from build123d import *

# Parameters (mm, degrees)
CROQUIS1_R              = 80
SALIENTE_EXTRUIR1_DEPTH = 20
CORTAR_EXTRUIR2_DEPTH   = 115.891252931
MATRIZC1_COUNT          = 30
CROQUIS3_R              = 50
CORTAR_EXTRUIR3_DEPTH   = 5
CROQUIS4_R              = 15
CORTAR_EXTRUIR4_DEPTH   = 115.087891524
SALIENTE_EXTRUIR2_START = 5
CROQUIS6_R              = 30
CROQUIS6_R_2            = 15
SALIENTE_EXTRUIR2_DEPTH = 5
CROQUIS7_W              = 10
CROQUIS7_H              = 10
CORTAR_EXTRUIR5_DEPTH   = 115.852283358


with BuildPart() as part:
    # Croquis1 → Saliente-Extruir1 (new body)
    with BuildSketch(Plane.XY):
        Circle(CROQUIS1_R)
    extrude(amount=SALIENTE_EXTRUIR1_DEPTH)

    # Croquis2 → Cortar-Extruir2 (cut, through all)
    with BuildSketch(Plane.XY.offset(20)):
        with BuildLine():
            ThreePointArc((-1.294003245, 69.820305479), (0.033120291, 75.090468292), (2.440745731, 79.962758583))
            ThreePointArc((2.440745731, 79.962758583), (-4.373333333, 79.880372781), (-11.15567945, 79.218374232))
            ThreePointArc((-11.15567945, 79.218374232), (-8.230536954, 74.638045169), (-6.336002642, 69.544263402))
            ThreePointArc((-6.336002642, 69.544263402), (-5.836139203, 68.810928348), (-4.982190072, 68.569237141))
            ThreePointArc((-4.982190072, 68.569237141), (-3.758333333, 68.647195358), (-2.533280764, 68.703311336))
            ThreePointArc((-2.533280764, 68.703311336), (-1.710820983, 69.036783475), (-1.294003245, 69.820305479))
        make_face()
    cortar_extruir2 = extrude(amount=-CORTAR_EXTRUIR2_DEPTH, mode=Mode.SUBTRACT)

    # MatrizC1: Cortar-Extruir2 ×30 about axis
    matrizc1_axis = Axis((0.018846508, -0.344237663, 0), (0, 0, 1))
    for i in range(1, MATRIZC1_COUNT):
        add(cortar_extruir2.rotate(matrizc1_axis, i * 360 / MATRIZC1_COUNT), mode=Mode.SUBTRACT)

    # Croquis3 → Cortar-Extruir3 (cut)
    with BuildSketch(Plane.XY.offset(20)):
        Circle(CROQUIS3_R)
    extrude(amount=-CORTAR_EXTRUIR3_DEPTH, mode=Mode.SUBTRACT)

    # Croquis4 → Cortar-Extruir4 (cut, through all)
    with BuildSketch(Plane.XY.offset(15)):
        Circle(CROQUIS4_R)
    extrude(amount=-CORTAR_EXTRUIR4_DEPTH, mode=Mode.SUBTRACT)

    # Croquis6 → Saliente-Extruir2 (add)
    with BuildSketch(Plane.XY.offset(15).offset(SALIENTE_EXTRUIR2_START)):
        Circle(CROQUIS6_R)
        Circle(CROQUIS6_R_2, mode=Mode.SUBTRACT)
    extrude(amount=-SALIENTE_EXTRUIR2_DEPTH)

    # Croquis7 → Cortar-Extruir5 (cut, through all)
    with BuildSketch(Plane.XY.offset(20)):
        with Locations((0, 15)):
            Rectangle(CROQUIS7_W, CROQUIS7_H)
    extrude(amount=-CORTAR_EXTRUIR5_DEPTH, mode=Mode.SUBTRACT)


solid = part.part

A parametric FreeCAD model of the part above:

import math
import FreeCAD as App
import Part
import Sketcher


def add_polygon(sketch, points):
    """Adds a closed chain of lines whose ends are joined by coincident constraints."""
    first, n = sketch.GeometryCount, len(points)
    for a, b in zip(points, points[1:] + points[:1]):
        sketch.addGeometry(Part.LineSegment(App.Vector(*a, 0), App.Vector(*b, 0)), False)
    for i in range(n):
        sketch.addConstraint(Sketcher.Constraint("Coincident", first + i, 2, first + (i + 1) % n, 1))

doc = App.newDocument("Part")
params = doc.addObject("Spreadsheet::Sheet", "Params")
for row, (alias, value) in enumerate([
    ("sketch1_diameter", "160 mm"),
    ("pad1_length", "20 mm"),
    ("sketch2_radius", "80 mm"),
    ("sketch2_radius2", "1.3 mm"),
    ("sketch2_radius3", "68.750001 mm"),
    ("sketch3_diameter", "100 mm"),
    ("pocket2_length", "5 mm"),
    ("sketch4_diameter", "30 mm"),
    ("sketch5_diameter", "60 mm"),
    ("sketch5_diameter2", "30 mm"),
    ("pad2_length", "5 mm"),
    ("sketch6_width", "10 mm"),
], start=1):
    params.set(f"A{row}", alias)
    params.set(f"B{row}", "=" + value)
    params.setAlias(f"B{row}", alias)

body = doc.addObject("PartDesign::Body", "Body")

# Sketch on XY plane
sketch1 = body.newObject("Sketcher::SketchObject", "Sketch")
sketch1.AttachmentSupport = (doc.getObject("XY_Plane"), [""])
sketch1.MapMode = "FlatFace"
sketch1.addGeometry(Part.Circle(App.Vector(0, 0, 0), App.Vector(0, 0, 1), 80), False)
sketch1.addConstraint([
    Sketcher.Constraint("Coincident", 0, 3, -1, 1),
    Sketcher.Constraint("Diameter", 0, 160.0),
])
sketch1.setExpression("Constraints[1]", "Params.sketch1_diameter")
pad1 = body.newObject("PartDesign::Pad", "Pad")
pad1.Profile = sketch1
pad1.setExpression("Length", "Params.pad1_length")

# Sketch on XY plane
sketch2 = body.newObject("Sketcher::SketchObject", "Sketch001")
sketch2.AttachmentSupport = (doc.getObject("XY_Plane"), [""])
sketch2.MapMode = "FlatFace"
sketch2.AttachmentOffset = App.Placement(App.Vector(0, 0, 20), App.Rotation())
sketch2.addGeometry([
    Part.ArcOfCircle(Part.Circle(App.Vector(24.104535, 66.226667, 0), App.Vector(0, 0, 1), 25.651511), math.radians(147.622946), math.radians(171.946678)),  # 0
    Part.ArcOfCircle(Part.Circle(App.Vector(0, 0, 0), App.Vector(0, 0, 1), 80), math.radians(88.251673), math.radians(98.01579)),  # 1
    Part.ArcOfCircle(Part.Circle(App.Vector(-31.19042, 63.199349, 0), App.Vector(0, 0, 1), 25.651511), math.radians(14.320785), math.radians(38.644517)),  # 2
    Part.ArcOfCircle(Part.Circle(App.Vector(-5.076399, 69.865819, 0), App.Vector(0, 0, 1), 1.3), math.radians(-165.679215), math.radians(-85.844234)),  # 3
    Part.ArcOfCircle(Part.Circle(App.Vector(0, -0.000001, 0), App.Vector(0, 0, 1), 68.750001), math.radians(92.111697), math.radians(94.155766)),  # 4
    Part.ArcOfCircle(Part.Circle(App.Vector(-2.581183, 70.002428, 0), App.Vector(0, 0, 1), 1.3), math.radians(-87.888303), math.radians(-8.053322)),  # 5
], False)
sketch2.addConstraint([
    Sketcher.Constraint("Coincident", 0, 1, 1, 1),
    Sketcher.Constraint("Coincident", 1, 2, 2, 2),
    Sketcher.Constraint("Tangent", 2, 1, 3, 1),
    Sketcher.Constraint("Tangent", 3, 2, 4, 2),
    Sketcher.Constraint("Tangent", 4, 1, 5, 1),
    Sketcher.Constraint("Tangent", 5, 2, 0, 2),
    Sketcher.Constraint("Coincident", 1, 3, -1, 1),
    Sketcher.Constraint("Coincident", 4, 3, -1, 1),
    Sketcher.Constraint("Equal", 0, 2),
    Sketcher.Constraint("Equal", 3, 5),
    Sketcher.Constraint("Radius", 1, 80.0),
    Sketcher.Constraint("Radius", 3, 1.3),
    Sketcher.Constraint("Radius", 4, 68.750001),
    Sketcher.Constraint("Radius", 0, 25.651511),
    Sketcher.Constraint("DistanceX", 2, 1, 5, 2, 5.041999),
    Sketcher.Constraint("DistanceX", 3, 3, -1, 1, 5.076399),
    Sketcher.Constraint("DistanceX", 2, 3, -1, 1, 31.19042),
    Sketcher.Constraint("DistanceX", 5, 3, 0, 3, 26.685718),
])
sketch2.setExpression("Constraints[10]", "Params.sketch2_radius")
sketch2.setExpression("Constraints[11]", "Params.sketch2_radius2")
sketch2.setExpression("Constraints[12]", "Params.sketch2_radius3")
pocket1 = body.newObject("PartDesign::Pocket", "Pocket")
pocket1.Profile = sketch2
pocket1.Type = "ThroughAll"
doc.recompute()

datumline = body.newObject("PartDesign::Line", "DatumLine")
datumline.Placement = App.Placement(App.Vector(0.018847, -0.344238, 0), App.Rotation(App.Vector(0, 0, 1), App.Vector(0, 0, 1)))
polarpattern = body.newObject("PartDesign::PolarPattern", "PolarPattern")
polarpattern.Originals = [pocket1]
polarpattern.Axis = (datumline, [""])
polarpattern.Angle = 360
polarpattern.Occurrences = 30
body.Tip = polarpattern

# Sketch on XY plane
sketch3 = body.newObject("Sketcher::SketchObject", "Sketch002")
sketch3.AttachmentSupport = (doc.getObject("XY_Plane"), [""])
sketch3.MapMode = "FlatFace"
sketch3.AttachmentOffset = App.Placement(App.Vector(0, 0, 20), App.Rotation())
sketch3.addGeometry(Part.Circle(App.Vector(0, 0, 0), App.Vector(0, 0, 1), 50), False)
sketch3.addConstraint([
    Sketcher.Constraint("Coincident", 0, 3, -1, 1),
    Sketcher.Constraint("Diameter", 0, 100.0),
])
sketch3.setExpression("Constraints[1]", "Params.sketch3_diameter")
pocket2 = body.newObject("PartDesign::Pocket", "Pocket001")
pocket2.Profile = sketch3
pocket2.setExpression("Length", "Params.pocket2_length")

# Sketch on XY plane
sketch4 = body.newObject("Sketcher::SketchObject", "Sketch003")
sketch4.AttachmentSupport = (doc.getObject("XY_Plane"), [""])
sketch4.MapMode = "FlatFace"
sketch4.AttachmentOffset = App.Placement(App.Vector(0, 0, 15), App.Rotation())
sketch4.addGeometry(Part.Circle(App.Vector(0, 0, 0), App.Vector(0, 0, 1), 15), False)
sketch4.addConstraint([
    Sketcher.Constraint("Coincident", 0, 3, -1, 1),
    Sketcher.Constraint("Diameter", 0, 30.0),
])
sketch4.setExpression("Constraints[1]", "Params.sketch4_diameter")
pocket3 = body.newObject("PartDesign::Pocket", "Pocket002")
pocket3.Profile = sketch4
pocket3.Type = "ThroughAll"

# Sketch on XY plane
sketch5 = body.newObject("Sketcher::SketchObject", "Sketch004")
sketch5.AttachmentSupport = (doc.getObject("XY_Plane"), [""])
sketch5.MapMode = "FlatFace"
sketch5.AttachmentOffset = App.Placement(App.Vector(0, 0, 20), App.Rotation())
sketch5.addGeometry([
    Part.Circle(App.Vector(0, 0, 0), App.Vector(0, 0, 1), 30),
    Part.Circle(App.Vector(0, 0, 0), App.Vector(0, 0, 1), 15),
], False)
sketch5.addConstraint([
    Sketcher.Constraint("Coincident", 0, 3, -1, 1),
    Sketcher.Constraint("Coincident", 1, 3, -1, 1),
    Sketcher.Constraint("Diameter", 0, 60.0),
    Sketcher.Constraint("Diameter", 1, 30.0),
])
sketch5.setExpression("Constraints[2]", "Params.sketch5_diameter")
sketch5.setExpression("Constraints[3]", "Params.sketch5_diameter2")
pad2 = body.newObject("PartDesign::Pad", "Pad001")
pad2.Profile = sketch5
pad2.setExpression("Length", "Params.pad2_length")
pad2.Reversed = True

# Sketch on XY plane
sketch6 = body.newObject("Sketcher::SketchObject", "Sketch005")
sketch6.AttachmentSupport = (doc.getObject("XY_Plane"), [""])
sketch6.MapMode = "FlatFace"
sketch6.AttachmentOffset = App.Placement(App.Vector(0, 0, 20), App.Rotation())
add_polygon(sketch6, [(-5, 20), (-5, 10), (5, 10), (5, 20)])  # lines 0-3
sketch6.addConstraint([
    Sketcher.Constraint("Vertical", 0),
    Sketcher.Constraint("Horizontal", 1),
    Sketcher.Constraint("Vertical", 2),
    Sketcher.Constraint("Horizontal", 3),
    Sketcher.Constraint("Equal", 3, 0),
    Sketcher.Constraint("DistanceX", 1, 1, 1, 2, 10.0),
    Sketcher.Constraint("DistanceX", 0, 2, -1, 1, 5.0),
    Sketcher.Constraint("DistanceY", -1, 1, 0, 2, 10.0),
])
sketch6.setExpression("Constraints[9]", "Params.sketch6_width")
pocket4 = body.newObject("PartDesign::Pocket", "Pocket003")
pocket4.Profile = sketch6
pocket4.Type = "ThroughAll"

doc.recompute()
